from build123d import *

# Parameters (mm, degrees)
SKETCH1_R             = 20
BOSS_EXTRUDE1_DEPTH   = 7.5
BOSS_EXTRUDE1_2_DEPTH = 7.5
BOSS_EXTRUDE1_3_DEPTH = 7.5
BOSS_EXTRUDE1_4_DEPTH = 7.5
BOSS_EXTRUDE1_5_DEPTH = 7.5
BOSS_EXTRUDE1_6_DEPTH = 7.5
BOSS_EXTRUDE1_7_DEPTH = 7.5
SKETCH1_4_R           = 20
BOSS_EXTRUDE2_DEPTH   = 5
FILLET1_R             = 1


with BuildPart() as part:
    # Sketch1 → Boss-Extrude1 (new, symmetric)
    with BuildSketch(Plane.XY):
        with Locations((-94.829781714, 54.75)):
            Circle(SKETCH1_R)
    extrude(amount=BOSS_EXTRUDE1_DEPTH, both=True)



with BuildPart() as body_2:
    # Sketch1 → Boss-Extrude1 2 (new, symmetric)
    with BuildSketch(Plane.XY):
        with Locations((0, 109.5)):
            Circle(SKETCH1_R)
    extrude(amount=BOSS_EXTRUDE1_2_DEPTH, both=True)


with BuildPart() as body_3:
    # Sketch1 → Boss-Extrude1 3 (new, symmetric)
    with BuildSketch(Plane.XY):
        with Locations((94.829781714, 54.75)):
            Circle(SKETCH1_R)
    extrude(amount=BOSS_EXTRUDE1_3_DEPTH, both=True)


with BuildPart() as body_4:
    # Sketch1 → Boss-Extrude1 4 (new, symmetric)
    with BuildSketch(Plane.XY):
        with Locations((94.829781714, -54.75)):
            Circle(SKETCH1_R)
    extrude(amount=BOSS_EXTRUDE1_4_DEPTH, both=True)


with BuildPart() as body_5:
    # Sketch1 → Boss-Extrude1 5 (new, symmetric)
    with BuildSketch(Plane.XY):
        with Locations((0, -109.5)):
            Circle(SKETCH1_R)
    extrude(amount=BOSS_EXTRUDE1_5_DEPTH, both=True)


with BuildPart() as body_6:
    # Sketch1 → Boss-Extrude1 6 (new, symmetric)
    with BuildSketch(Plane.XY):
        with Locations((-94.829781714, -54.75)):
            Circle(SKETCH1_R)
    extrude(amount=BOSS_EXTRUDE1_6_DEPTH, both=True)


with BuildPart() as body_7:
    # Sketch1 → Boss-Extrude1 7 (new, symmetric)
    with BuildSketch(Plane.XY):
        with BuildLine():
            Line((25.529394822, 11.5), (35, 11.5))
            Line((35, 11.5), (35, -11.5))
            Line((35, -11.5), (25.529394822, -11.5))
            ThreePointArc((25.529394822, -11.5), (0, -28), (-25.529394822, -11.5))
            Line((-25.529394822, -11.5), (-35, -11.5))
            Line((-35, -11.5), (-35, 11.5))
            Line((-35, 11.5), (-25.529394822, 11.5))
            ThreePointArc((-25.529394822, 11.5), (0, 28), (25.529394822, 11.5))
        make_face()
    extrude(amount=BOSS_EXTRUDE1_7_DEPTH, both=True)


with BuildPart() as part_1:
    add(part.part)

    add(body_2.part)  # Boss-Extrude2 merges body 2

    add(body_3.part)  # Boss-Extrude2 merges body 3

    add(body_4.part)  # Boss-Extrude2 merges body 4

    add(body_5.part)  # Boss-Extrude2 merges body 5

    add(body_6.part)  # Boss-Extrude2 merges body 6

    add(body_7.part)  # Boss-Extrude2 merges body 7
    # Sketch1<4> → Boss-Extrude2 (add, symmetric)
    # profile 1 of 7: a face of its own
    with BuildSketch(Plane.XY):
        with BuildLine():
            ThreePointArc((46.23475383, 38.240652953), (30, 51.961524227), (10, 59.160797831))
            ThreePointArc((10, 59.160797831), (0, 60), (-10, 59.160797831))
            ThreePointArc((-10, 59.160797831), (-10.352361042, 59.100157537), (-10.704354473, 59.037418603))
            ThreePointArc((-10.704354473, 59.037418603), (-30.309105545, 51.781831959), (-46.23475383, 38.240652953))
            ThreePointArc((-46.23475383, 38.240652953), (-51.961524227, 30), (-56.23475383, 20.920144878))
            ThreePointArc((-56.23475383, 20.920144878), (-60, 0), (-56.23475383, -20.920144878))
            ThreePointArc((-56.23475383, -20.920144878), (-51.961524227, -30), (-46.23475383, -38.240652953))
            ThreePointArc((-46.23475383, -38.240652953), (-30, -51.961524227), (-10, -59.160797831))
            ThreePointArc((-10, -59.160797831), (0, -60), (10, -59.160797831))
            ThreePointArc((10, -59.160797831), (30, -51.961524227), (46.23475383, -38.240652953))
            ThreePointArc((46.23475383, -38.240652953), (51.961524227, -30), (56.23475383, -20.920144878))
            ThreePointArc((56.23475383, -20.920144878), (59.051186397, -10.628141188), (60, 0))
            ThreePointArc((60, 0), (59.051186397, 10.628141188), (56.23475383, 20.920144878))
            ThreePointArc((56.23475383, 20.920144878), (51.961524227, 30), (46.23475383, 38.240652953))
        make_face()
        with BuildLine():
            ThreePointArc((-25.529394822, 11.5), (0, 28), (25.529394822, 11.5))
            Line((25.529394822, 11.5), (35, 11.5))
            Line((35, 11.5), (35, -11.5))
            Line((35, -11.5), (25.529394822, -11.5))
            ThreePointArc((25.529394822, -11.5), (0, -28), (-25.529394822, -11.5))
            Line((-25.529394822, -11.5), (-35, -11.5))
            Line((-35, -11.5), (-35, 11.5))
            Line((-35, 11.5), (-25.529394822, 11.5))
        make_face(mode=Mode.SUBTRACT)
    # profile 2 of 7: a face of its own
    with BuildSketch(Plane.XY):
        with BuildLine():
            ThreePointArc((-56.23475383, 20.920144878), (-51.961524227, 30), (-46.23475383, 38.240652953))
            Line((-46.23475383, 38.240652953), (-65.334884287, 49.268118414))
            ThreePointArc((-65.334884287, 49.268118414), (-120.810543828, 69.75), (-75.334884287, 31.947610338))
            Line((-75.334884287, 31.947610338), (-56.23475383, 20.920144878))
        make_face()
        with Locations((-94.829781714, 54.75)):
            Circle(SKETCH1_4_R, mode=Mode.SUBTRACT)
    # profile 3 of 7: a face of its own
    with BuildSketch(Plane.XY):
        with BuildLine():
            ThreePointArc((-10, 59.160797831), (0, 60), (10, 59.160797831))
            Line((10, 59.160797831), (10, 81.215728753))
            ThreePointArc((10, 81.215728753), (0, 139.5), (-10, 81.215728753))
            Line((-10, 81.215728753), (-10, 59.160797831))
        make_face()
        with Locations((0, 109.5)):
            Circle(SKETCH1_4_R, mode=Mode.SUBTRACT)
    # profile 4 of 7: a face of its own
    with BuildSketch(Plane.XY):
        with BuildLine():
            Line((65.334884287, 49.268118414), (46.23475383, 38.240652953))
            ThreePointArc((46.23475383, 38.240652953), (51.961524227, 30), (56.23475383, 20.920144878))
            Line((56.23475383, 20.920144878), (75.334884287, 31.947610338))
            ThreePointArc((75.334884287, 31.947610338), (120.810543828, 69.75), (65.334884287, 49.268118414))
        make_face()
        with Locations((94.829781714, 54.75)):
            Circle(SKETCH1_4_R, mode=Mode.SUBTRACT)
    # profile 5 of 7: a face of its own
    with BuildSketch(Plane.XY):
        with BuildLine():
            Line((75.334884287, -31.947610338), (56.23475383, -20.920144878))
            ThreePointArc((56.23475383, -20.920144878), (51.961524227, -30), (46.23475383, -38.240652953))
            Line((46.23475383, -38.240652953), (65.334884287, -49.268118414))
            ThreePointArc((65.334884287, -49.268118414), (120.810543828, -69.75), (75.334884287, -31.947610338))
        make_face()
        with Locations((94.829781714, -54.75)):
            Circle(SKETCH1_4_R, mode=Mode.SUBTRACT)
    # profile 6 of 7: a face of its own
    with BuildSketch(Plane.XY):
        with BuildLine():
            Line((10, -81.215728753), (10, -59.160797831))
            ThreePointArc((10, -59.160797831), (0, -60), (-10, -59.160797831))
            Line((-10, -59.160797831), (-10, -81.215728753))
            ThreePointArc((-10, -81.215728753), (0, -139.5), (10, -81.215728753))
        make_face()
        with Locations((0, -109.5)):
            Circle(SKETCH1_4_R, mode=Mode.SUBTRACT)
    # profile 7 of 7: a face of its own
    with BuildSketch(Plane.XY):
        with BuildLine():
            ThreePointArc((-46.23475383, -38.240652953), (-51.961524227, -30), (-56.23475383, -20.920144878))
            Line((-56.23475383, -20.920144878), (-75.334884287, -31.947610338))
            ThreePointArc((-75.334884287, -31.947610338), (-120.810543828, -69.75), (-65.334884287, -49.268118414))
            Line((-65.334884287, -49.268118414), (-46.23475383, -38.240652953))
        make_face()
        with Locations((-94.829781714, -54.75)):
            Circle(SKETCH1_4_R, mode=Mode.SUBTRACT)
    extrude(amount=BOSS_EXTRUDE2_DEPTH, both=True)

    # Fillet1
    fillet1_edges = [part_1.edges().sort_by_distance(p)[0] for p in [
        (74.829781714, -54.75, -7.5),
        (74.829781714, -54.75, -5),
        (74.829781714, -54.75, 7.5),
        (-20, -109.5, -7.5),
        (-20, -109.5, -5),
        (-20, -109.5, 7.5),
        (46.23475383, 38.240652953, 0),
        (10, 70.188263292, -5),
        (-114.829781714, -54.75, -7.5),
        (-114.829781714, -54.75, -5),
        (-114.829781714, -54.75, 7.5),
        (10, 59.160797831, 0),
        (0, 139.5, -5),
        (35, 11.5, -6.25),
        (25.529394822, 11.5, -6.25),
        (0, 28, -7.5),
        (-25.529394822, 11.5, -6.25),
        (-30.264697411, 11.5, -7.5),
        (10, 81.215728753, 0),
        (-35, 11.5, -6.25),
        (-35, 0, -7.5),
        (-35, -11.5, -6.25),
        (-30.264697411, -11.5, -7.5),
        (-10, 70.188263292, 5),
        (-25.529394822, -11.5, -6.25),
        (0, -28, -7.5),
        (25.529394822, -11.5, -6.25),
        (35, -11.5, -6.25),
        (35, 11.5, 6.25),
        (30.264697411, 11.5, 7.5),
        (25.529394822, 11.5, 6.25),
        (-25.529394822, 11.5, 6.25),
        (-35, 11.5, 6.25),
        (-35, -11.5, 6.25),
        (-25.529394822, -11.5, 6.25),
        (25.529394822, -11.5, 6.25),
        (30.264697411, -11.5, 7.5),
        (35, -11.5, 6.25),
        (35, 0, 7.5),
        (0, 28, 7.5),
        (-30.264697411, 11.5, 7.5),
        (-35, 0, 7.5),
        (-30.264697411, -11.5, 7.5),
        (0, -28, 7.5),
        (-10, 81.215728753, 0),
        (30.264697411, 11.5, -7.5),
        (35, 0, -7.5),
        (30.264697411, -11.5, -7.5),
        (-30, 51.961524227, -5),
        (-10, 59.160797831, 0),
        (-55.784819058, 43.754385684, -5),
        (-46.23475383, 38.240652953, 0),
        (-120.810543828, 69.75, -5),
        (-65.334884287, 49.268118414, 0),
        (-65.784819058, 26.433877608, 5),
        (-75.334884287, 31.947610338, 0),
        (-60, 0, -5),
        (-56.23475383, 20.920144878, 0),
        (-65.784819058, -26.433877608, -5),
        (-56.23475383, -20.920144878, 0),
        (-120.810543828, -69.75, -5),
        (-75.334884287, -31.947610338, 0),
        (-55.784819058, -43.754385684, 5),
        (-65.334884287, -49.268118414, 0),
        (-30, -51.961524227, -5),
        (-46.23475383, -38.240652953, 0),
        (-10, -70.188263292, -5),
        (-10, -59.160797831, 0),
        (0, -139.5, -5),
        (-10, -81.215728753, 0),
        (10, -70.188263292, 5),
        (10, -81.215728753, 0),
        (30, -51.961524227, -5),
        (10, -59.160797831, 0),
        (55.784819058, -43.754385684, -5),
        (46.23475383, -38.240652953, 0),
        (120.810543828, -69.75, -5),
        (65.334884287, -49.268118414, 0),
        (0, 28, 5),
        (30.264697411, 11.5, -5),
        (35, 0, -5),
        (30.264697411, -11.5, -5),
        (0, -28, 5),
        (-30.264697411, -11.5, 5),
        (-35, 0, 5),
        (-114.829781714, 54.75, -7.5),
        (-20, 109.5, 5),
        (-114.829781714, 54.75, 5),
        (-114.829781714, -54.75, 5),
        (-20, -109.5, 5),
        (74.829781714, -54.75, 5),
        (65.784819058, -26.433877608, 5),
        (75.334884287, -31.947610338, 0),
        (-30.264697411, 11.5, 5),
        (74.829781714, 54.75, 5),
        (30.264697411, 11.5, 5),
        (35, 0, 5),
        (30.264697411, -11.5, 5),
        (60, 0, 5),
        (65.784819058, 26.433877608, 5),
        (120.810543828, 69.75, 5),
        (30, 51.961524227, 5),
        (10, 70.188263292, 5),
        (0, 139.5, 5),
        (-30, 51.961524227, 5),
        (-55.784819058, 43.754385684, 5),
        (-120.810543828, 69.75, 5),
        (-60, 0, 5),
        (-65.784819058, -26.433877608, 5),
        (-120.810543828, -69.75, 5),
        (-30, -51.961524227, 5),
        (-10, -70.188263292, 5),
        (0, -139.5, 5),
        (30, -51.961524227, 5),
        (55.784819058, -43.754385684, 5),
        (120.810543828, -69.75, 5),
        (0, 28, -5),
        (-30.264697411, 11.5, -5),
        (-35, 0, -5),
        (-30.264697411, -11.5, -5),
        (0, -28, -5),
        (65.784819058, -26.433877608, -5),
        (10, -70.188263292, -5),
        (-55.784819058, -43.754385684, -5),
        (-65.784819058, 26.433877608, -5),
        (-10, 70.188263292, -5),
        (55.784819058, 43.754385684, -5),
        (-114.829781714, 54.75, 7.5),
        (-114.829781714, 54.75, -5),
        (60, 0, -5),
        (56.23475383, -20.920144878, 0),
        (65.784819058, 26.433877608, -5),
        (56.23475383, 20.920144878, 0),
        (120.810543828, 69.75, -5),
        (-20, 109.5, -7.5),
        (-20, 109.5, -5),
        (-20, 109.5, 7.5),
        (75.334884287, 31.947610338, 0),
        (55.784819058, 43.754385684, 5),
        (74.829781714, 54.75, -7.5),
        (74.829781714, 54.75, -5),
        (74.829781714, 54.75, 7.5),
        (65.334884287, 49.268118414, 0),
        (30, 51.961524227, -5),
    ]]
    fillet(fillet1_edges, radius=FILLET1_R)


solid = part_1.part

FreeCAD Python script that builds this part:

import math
import FreeCAD as App
import Part
import Sketcher
Q = App.Units.Quantity

doc = App.newDocument("Part")
params = doc.addObject("Spreadsheet::Sheet", "Params")
for row, (alias, value) in enumerate([
    ("sketch1_diameter", "40 mm"),
    ("pad1_length", "15 mm"),
    ("sketch2_diameter", "40 mm"),
    ("pad2_length", "15 mm"),
    ("sketch3_diameter", "40 mm"),
    ("pad3_length", "15 mm"),
    ("sketch4_diameter", "40 mm"),
    ("pad4_length", "15 mm"),
    ("sketch5_diameter", "40 mm"),
    ("pad5_length", "15 mm"),
    ("sketch6_diameter", "40 mm"),
    ("pad6_length", "15 mm"),
    ("sketch7_radius", "28 mm"),
    ("sketch7_height", "23 mm"),
    ("pad7_length", "15 mm"),
    ("sketch8_diameter", "40 mm"),
    ("sketch8_radius", "60 mm"),
    ("sketch8_radius2", "30 mm"),
    ("sketch8_radius3", "28 mm"),
    ("sketch8_height", "23 mm"),
    ("pad8_length", "10 mm"),
    ("fillet_radius", "1 mm"),
], start=1):
    params.set(f"A{row}", alias)
    params.set(f"B{row}", "=" + value)
    params.setAlias(f"B{row}", alias)

body = doc.addObject("PartDesign::Body", "Body")

sketch1 = doc.addObject("Sketcher::SketchObject", "Sketch")
body.addObject(sketch1)
sketch1.AttachmentSupport = (doc.XY_Plane, [""])
sketch1.MapMode = "FlatFace"
sketch1.addGeometry(Part.Circle(App.Vector(-95, 55, 0), App.Vector(0, 0, 1), 20), False)
sketch1.addConstraint([
    Sketcher.Constraint("Diameter", 0, Q("40 mm")),
    Sketcher.Constraint("DistanceY", -1, 1, 0, 3, Q("54.75 mm")),
    Sketcher.Constraint("DistanceX", 0, 3, -1, 1, Q("94.829782 mm")),
])
sketch1.setExpression("Constraints[0]", "Params.sketch1_diameter")
pad1 = doc.addObject("PartDesign::Pad", "Pad")
body.addObject(pad1)
pad1.Profile = sketch1
pad1.setExpression("Length", "Params.pad1_length")
pad1.Midplane = True
body2 = doc.addObject("PartDesign::Body", "Body001")

sketch2 = doc.addObject("Sketcher::SketchObject", "Sketch001")
body2.addObject(sketch2)
sketch2.AttachmentSupport = (doc.getObject("XY_Plane001"), [""])
sketch2.MapMode = "FlatFace"
sketch2.addGeometry(Part.Circle(App.Vector(0, 110, 0), App.Vector(0, 0, 1), 20), False)
sketch2.addConstraint([
    Sketcher.Constraint("PointOnObject", 0, 3, -2),
    Sketcher.Constraint("Diameter", 0, Q("40 mm")),
    Sketcher.Constraint("DistanceY", -1, 1, 0, 3, Q("109.5 mm")),
])
sketch2.setExpression("Constraints[1]", "Params.sketch2_diameter")
pad2 = doc.addObject("PartDesign::Pad", "Pad001")
body2.addObject(pad2)
pad2.Profile = sketch2
pad2.setExpression("Length", "Params.pad2_length")
pad2.Midplane = True
body3 = doc.addObject("PartDesign::Body", "Body002")

sketch3 = doc.addObject("Sketcher::SketchObject", "Sketch002")
body3.addObject(sketch3)
sketch3.AttachmentSupport = (doc.getObject("XY_Plane002"), [""])
sketch3.MapMode = "FlatFace"
sketch3.addGeometry(Part.Circle(App.Vector(95, 55, 0), App.Vector(0, 0, 1), 20), False)
sketch3.addConstraint([
    Sketcher.Constraint("Diameter", 0, Q("40 mm")),
    Sketcher.Constraint("DistanceY", -1, 1, 0, 3, Q("54.75 mm")),
    Sketcher.Constraint("DistanceX", -1, 1, 0, 3, Q("94.829782 mm")),
])
sketch3.setExpression("Constraints[0]", "Params.sketch3_diameter")
pad3 = doc.addObject("PartDesign::Pad", "Pad002")
body3.addObject(pad3)
pad3.Profile = sketch3
pad3.setExpression("Length", "Params.pad3_length")
pad3.Midplane = True
body4 = doc.addObject("PartDesign::Body", "Body003")

sketch4 = doc.addObject("Sketcher::SketchObject", "Sketch003")
body4.addObject(sketch4)
sketch4.AttachmentSupport = (doc.getObject("XY_Plane003"), [""])
sketch4.MapMode = "FlatFace"
sketch4.addGeometry(Part.Circle(App.Vector(95, -55, 0), App.Vector(0, 0, 1), 20), False)
sketch4.addConstraint([
    Sketcher.Constraint("Diameter", 0, Q("40 mm")),
    Sketcher.Constraint("DistanceY", 0, 3, -1, 1, Q("54.75 mm")),
    Sketcher.Constraint("DistanceX", -1, 1, 0, 3, Q("94.829782 mm")),
])
sketch4.setExpression("Constraints[0]", "Params.sketch4_diameter")
pad4 = doc.addObject("PartDesign::Pad", "Pad003")
body4.addObject(pad4)
pad4.Profile = sketch4
pad4.setExpression("Length", "Params.pad4_length")
pad4.Midplane = True
body5 = doc.addObject("PartDesign::Body", "Body004")

sketch5 = doc.addObject("Sketcher::SketchObject", "Sketch004")
body5.addObject(sketch5)
sketch5.AttachmentSupport = (doc.getObject("XY_Plane004"), [""])
sketch5.MapMode = "FlatFace"
sketch5.addGeometry(Part.Circle(App.Vector(0, -110, 0), App.Vector(0, 0, 1), 20), False)
sketch5.addConstraint([
    Sketcher.Constraint("PointOnObject", 0, 3, -2),
    Sketcher.Constraint("Diameter", 0, Q("40 mm")),
    Sketcher.Constraint("DistanceY", 0, 3, -1, 1, Q("109.5 mm")),
])
sketch5.setExpression("Constraints[1]", "Params.sketch5_diameter")
pad5 = doc.addObject("PartDesign::Pad", "Pad004")
body5.addObject(pad5)
pad5.Profile = sketch5
pad5.setExpression("Length", "Params.pad5_length")
pad5.Midplane = True
body6 = doc.addObject("PartDesign::Body", "Body005")

sketch6 = doc.addObject("Sketcher::SketchObject", "Sketch005")
body6.addObject(sketch6)
sketch6.AttachmentSupport = (doc.getObject("XY_Plane005"), [""])
sketch6.MapMode = "FlatFace"
sketch6.addGeometry(Part.Circle(App.Vector(-95, -55, 0), App.Vector(0, 0, 1), 20), False)
sketch6.addConstraint([
    Sketcher.Constraint("Diameter", 0, Q("40 mm")),
    Sketcher.Constraint("DistanceY", 0, 3, -1, 1, Q("54.75 mm")),
    Sketcher.Constraint("DistanceX", 0, 3, -1, 1, Q("94.829782 mm")),
])
sketch6.setExpression("Constraints[0]", "Params.sketch6_diameter")
pad6 = doc.addObject("PartDesign::Pad", "Pad005")
body6.addObject(pad6)
pad6.Profile = sketch6
pad6.setExpression("Length", "Params.pad6_length")
pad6.Midplane = True
body7 = doc.addObject("PartDesign::Body", "Body006")

sketch7 = doc.addObject("Sketcher::SketchObject", "Sketch006")
body7.addObject(sketch7)
sketch7.AttachmentSupport = (doc.getObject("XY_Plane006"), [""])
sketch7.MapMode = "FlatFace"
sketch7.addGeometry([
    Part.LineSegment(App.Vector(35, 12, 0), App.Vector(26, 12, 0)),
    Part.ArcOfCircle(Part.Circle(App.Vector(0, 0, 0), App.Vector(0, 0, 1), 28), math.radians(24), math.radians(156)),
    Part.LineSegment(App.Vector(-26, 12, 0), App.Vector(-35, 12, 0)),
    Part.LineSegment(App.Vector(-35, 12, 0), App.Vector(-35, -12, 0)),
    Part.LineSegment(App.Vector(-35, -12, 0), App.Vector(-26, -12, 0)),
    Part.ArcOfCircle(Part.Circle(App.Vector(0, 0, 0), App.Vector(0, 0, 1), 28), math.radians(-156), math.radians(-24)),
    Part.LineSegment(App.Vector(26, -12, 0), App.Vector(35, -12, 0)),
    Part.LineSegment(App.Vector(35, -12, 0), App.Vector(35, 12, 0)),
], False)
sketch7.addConstraint([
    Sketcher.Constraint("Coincident", 0, 2, 1, 1),
    Sketcher.Constraint("Coincident", 1, 2, 2, 1),
    Sketcher.Constraint("Coincident", 2, 2, 3, 1),
    Sketcher.Constraint("Coincident", 3, 2, 4, 1),
    Sketcher.Constraint("Coincident", 4, 2, 5, 1),
    Sketcher.Constraint("Coincident", 5, 2, 6, 1),
    Sketcher.Constraint("Coincident", 6, 2, 7, 1),
    Sketcher.Constraint("Coincident", 7, 2, 0, 1),
    Sketcher.Constraint("Horizontal", 0),
    Sketcher.Constraint("Horizontal", 2),
    Sketcher.Constraint("Vertical", 3),
    Sketcher.Constraint("Horizontal", 4),
    Sketcher.Constraint("Horizontal", 6),
    Sketcher.Constraint("Vertical", 7),
    Sketcher.Constraint("Coincident", 1, 3, -1, 1),
    Sketcher.Constraint("Coincident", 5, 3, -1, 1),
    Sketcher.Constraint("Equal", 1, 5),
    Sketcher.Constraint("Symmetric", 2, 2, 6, 2, -1, 1),
    Sketcher.Constraint("Horizontal", 0, 2, 1, 2),
    Sketcher.Constraint("Horizontal", 4, 2, 5, 2),
    Sketcher.Constraint("Radius", 1, Q("28 mm")),
    Sketcher.Constraint("DistanceY", 3, 2, 3, 1, Q("23 mm")),
    Sketcher.Constraint("DistanceX", 2, 2, -1, 1, Q("35 mm")),
])
sketch7.setExpression("Constraints[20]", "Params.sketch7_radius")
sketch7.setExpression("Constraints[21]", "Params.sketch7_height")
pad7 = doc.addObject("PartDesign::Pad", "Pad006")
body7.addObject(pad7)
pad7.Profile = sketch7
pad7.setExpression("Length", "Params.pad7_length")
pad7.Midplane = True
body.AllowCompound = True
doc.recompute()

boolean = doc.addObject("PartDesign::Boolean", "Boolean")
body.addObject(boolean)
boolean.Type = "Fuse"
boolean.addObjects([body2])
doc.recompute()

boolean2 = doc.addObject("PartDesign::Boolean", "Boolean001")
body.addObject(boolean2)
boolean2.Type = "Fuse"
boolean2.addObjects([body3])
doc.recompute()

boolean3 = doc.addObject("PartDesign::Boolean", "Boolean002")
body.addObject(boolean3)
boolean3.Type = "Fuse"
boolean3.addObjects([body4])
doc.recompute()

boolean4 = doc.addObject("PartDesign::Boolean", "Boolean003")
body.addObject(boolean4)
boolean4.Type = "Fuse"
boolean4.addObjects([body5])
doc.recompute()

boolean5 = doc.addObject("PartDesign::Boolean", "Boolean004")
body.addObject(boolean5)
boolean5.Type = "Fuse"
boolean5.addObjects([body6])
doc.recompute()

boolean6 = doc.addObject("PartDesign::Boolean", "Boolean005")
body.addObject(boolean6)
boolean6.Type = "Fuse"
boolean6.addObjects([body7])

sketch8 = doc.addObject("Sketcher::SketchObject", "Sketch007")
body.addObject(sketch8)
sketch8.AttachmentSupport = (doc.XY_Plane, [""])
sketch8.MapMode = "FlatFace"
sketch8.addGeometry([
    Part.ArcOfCircle(Part.Circle(App.Vector(0, 0, 0), App.Vector(0, 0, 1), 60), math.radians(40), math.radians(80)),
    Part.LineSegment(App.Vector(10, 59.2, 0), App.Vector(10, 81.2, 0)),
    Part.ArcOfCircle(Part.Circle(App.Vector(0, 109.5, 0), App.Vector(0, 0, 1), 30), math.radians(-71), math.radians(251)),
    Part.LineSegment(App.Vector(-10, 81.2, 0), App.Vector(-10, 59.2, 0)),
    Part.ArcOfCircle(Part.Circle(App.Vector(0, 0, 0), App.Vector(0, 0, 1), 60), math.radians(99.59), math.radians(100.28)),
    Part.ArcOfCircle(Part.Circle(App.Vector(0, 0, 0), App.Vector(0, 0, 1), 60), math.radians(100), math.radians(140)),
    Part.LineSegment(App.Vector(-46.2, 38.2, 0), App.Vector(-65.3, 49.3, 0)),
    Part.ArcOfCircle(Part.Circle(App.Vector(-94.8, 54.7, 0), App.Vector(0, 0, 1), 30), math.radians(-11), math.radians(311)),
    Part.LineSegment(App.Vector(-75.3, 31.9, 0), App.Vector(-56.2, 20.9, 0)),
    Part.ArcOfCircle(Part.Circle(App.Vector(0, 0, 0), App.Vector(0, 0, 1), 60), math.radians(160), math.radians(200)),
    Part.LineSegment(App.Vector(-56.2, -20.9, 0), App.Vector(-75.3, -31.9, 0)),
    Part.ArcOfCircle(Part.Circle(App.Vector(-94.8, -54.7, 0), App.Vector(0, 0, 1), 30), math.radians(49), math.radians(371)),
    Part.LineSegment(App.Vector(-65.3, -49.3, 0), App.Vector(-46.2, -38.2, 0)),
    Part.ArcOfCircle(Part.Circle(App.Vector(0, 0, 0), App.Vector(0, 0, 1), 60), math.radians(-140), math.radians(-100)),
    Part.LineSegment(App.Vector(-10, -59.2, 0), App.Vector(-10, -81.2, 0)),
    Part.ArcOfCircle(Part.Circle(App.Vector(0, -109.5, 0), App.Vector(0, 0, 1), 30), math.radians(109), math.radians(431)),
    Part.LineSegment(App.Vector(10, -81.2, 0), App.Vector(10, -59.2, 0)),
    Part.ArcOfCircle(Part.Circle(App.Vector(0, 0, 0), App.Vector(0, 0, 1), 60), math.radians(-80), math.radians(-40)),
    Part.LineSegment(App.Vector(46.2, -38.2, 0), App.Vector(65.3, -49.3, 0)),
    Part.ArcOfCircle(Part.Circle(App.Vector(94.8, -54.7, 0), App.Vector(0, 0, 1), 30), math.radians(169), math.radians(491)),
    Part.LineSegment(App.Vector(75.3, -31.9, 0), App.Vector(56.2, -20.9, 0)),
    Part.ArcOfCircle(Part.Circle(App.Vector(0, 0, 0), App.Vector(0, 0, 1), 60), math.radians(-20), math.radians(0)),
    Part.ArcOfCircle(Part.Circle(App.Vector(0, 0, 0), App.Vector(0, 0, 1), 60), math.radians(0), math.radians(20)),
    Part.LineSegment(App.Vector(56.2, 20.9, 0), App.Vector(75.3, 31.9, 0)),
    Part.ArcOfCircle(Part.Circle(App.Vector(94.8, 54.7, 0), App.Vector(0, 0, 1), 30), math.radians(-131), math.radians(191)),
    Part.LineSegment(App.Vector(65.3, 49.3, 0), App.Vector(46.2, 38.2, 0)),
    Part.LineSegment(App.Vector(-35, 11.5, 0), App.Vector(-25.5, 11.5, 0)),
    Part.ArcOfCircle(Part.Circle(App.Vector(0, 0, 0), App.Vector(0, 0, 1), 28), math.radians(24), math.radians(156)),
    Part.LineSegment(App.Vector(25.5, 11.5, 0), App.Vector(35, 11.5, 0)),
    Part.LineSegment(App.Vector(35, 11.5, 0), App.Vector(35, -11.5, 0)),
    Part.LineSegment(App.Vector(35, -11.5, 0), App.Vector(25.5, -11.5, 0)),
    Part.ArcOfCircle(Part.Circle(App.Vector(0, 0, 0), App.Vector(0, 0, 1), 28), math.radians(-156), math.radians(-24)),
    Part.LineSegment(App.Vector(-25.5, -11.5, 0), App.Vector(-35, -11.5, 0)),
    Part.LineSegment(App.Vector(-35, -11.5, 0), App.Vector(-35, 11.5, 0)),
    Part.Circle(App.Vector(94.8, 54.8, 0), App.Vector(0, 0, 1), 20),
    Part.Circle(App.Vector(0, 109.5, 0), App.Vector(0, 0, 1), 20),
    Part.Circle(App.Vector(94.8, -54.8, 0), App.Vector(0, 0, 1), 20),
    Part.Circle(App.Vector(-94.8, 54.8, 0), App.Vector(0, 0, 1), 20),
    Part.Circle(App.Vector(0, -109.5, 0), App.Vector(0, 0, 1), 20),
    Part.Circle(App.Vector(-94.8, -54.8, 0), App.Vector(0, 0, 1), 20),
], False)
sketch8.addConstraint([
    Sketcher.Constraint("Coincident", 0, 2, 1, 1),
    Sketcher.Constraint("Coincident", 1, 2, 2, 1),
    Sketcher.Constraint("Coincident", 2, 2, 3, 1),
    Sketcher.Constraint("Coincident", 3, 2, 4, 1),
    Sketcher.Constraint("Tangent", 4, 2, 5, 1),
    Sketcher.Constraint("Coincident", 5, 2, 6, 1),
    Sketcher.Constraint("Coincident", 6, 2, 7, 1),
    Sketcher.Constraint("Coincident", 7, 2, 8, 1),
    Sketcher.Constraint("Coincident", 8, 2, 9, 1),
    Sketcher.Constraint("Coincident", 9, 2, 10, 1),
    Sketcher.Constraint("Coincident", 10, 2, 11, 1),
    Sketcher.Constraint("Coincident", 11, 2, 12, 1),
    Sketcher.Constraint("Coincident", 12, 2, 13, 1),
    Sketcher.Constraint("Coincident", 13, 2, 14, 1),
    Sketcher.Constraint("Coincident", 14, 2, 15, 1),
    Sketcher.Constraint("Coincident", 15, 2, 16, 1),
    Sketcher.Constraint("Coincident", 16, 2, 17, 1),
    Sketcher.Constraint("Coincident", 17, 2, 18, 1),
    Sketcher.Constraint("Coincident", 18, 2, 19, 1),
    Sketcher.Constraint("Coincident", 19, 2, 20, 1),
    Sketcher.Constraint("Coincident", 20, 2, 21, 1),
    Sketcher.Constraint("Tangent", 21, 2, 22, 1),
    Sketcher.Constraint("Coincident", 22, 2, 23, 1),
    Sketcher.Constraint("Coincident", 23, 2, 24, 1),
    Sketcher.Constraint("Coincident", 24, 2, 25, 1),
    Sketcher.Constraint("Coincident", 25, 2, 0, 1),
    Sketcher.Constraint("Coincident", 26, 2, 27, 2),
    Sketcher.Constraint("Coincident", 27, 1, 28, 1),
    Sketcher.Constraint("Coincident", 28, 2, 29, 1),
    Sketcher.Constraint("Coincident", 29, 2, 30, 1),
    Sketcher.Constraint("Coincident", 30, 2, 31, 2),
    Sketcher.Constraint("Coincident", 31, 1, 32, 1),
    Sketcher.Constraint("Coincident", 32, 2, 33, 1),
    Sketcher.Constraint("Coincident", 33, 2, 26, 1),
    Sketcher.Constraint("Vertical", 1),
    Sketcher.Constraint("Vertical", 3),
    Sketcher.Constraint("Vertical", 14),
    Sketcher.Constraint("Vertical", 16),
    Sketcher.Constraint("Horizontal", 26),
    Sketcher.Constraint("Horizontal", 28),
    Sketcher.Constraint("Vertical", 29),
    Sketcher.Constraint("Horizontal", 30),
    Sketcher.Constraint("Horizontal", 32),
    Sketcher.Constraint("Vertical", 33),
    Sketcher.Constraint("Coincident", 0, 3, -1, 1),
    Sketcher.Constraint("Coincident", 5, 3, -1, 1),
    Sketcher.Constraint("Coincident", 9, 3, -1, 1),
    Sketcher.Constraint("Coincident", 13, 3, -1, 1),
    Sketcher.Constraint("Coincident", 17, 3, -1, 1),
    Sketcher.Constraint("Coincident", 21, 3, -1, 1),
    Sketcher.Constraint("Coincident", 27, 3, -1, 1),
    Sketcher.Constraint("Coincident", 31, 3, -1, 1),
    Sketcher.Constraint("Coincident", 34, 3, 24, 3),
    Sketcher.Constraint("Coincident", 35, 3, 2, 3),
    Sketcher.Constraint("Coincident", 36, 3, 19, 3),
    Sketcher.Constraint("Coincident", 37, 3, 7, 3),
    Sketcher.Constraint("Coincident", 38, 3, 15, 3),
    Sketcher.Constraint("Coincident", 39, 3, 11, 3),
    Sketcher.Constraint("Equal", 0, 5),
    Sketcher.Constraint("Equal", 2, 7),
    Sketcher.Constraint("Equal", 5, 9),
    Sketcher.Constraint("Equal", 7, 11),
    Sketcher.Constraint("Equal", 9, 13),
    Sketcher.Constraint("Equal", 11, 15),
    Sketcher.Constraint("Equal", 13, 17),
    Sketcher.Constraint("Equal", 15, 19),
    Sketcher.Constraint("Equal", 17, 21),
    Sketcher.Constraint("Equal", 21, 22),
    Sketcher.Constraint("Equal", 19, 24),
    Sketcher.Constraint("Equal", 27, 31),
    Sketcher.Constraint("Equal", 34, 35),
    Sketcher.Constraint("Equal", 35, 36),
    Sketcher.Constraint("Equal", 36, 37),
    Sketcher.Constraint("Equal", 37, 38),
    Sketcher.Constraint("Equal", 38, 39),
    Sketcher.Constraint("Symmetric", 2, 3, 15, 3, -1, 1),
    Sketcher.Constraint("Symmetric", 7, 3, 19, 3, -1, 1),
    Sketcher.Constraint("Symmetric", 11, 3, 24, 3, -1, 1),
    Sketcher.Constraint("Symmetric", 28, 2, 32, 2, -1, 1),
    Sketcher.Constraint("Symmetric", 11, 3, 19, 3, -2),
    Sketcher.Constraint("Symmetric", 1, 2, 2, 2, -2),
    Sketcher.Constraint("PointOnObject", 21, 2, -1),
    Sketcher.Constraint("Parallel", 6, 8),
    Sketcher.Constraint("Parallel", 10, 12),
    Sketcher.Constraint("Parallel", 8, 18),
    Sketcher.Constraint("Parallel", 18, 20),
    Sketcher.Constraint("Parallel", 12, 23),
    Sketcher.Constraint("Parallel", 23, 25),
    Sketcher.Constraint("Horizontal", 14, 2, 15, 2),
    Sketcher.Constraint("Horizontal", 12, 2, 17, 2),
    Sketcher.Constraint("Horizontal", 11, 2, 18, 2),
    Sketcher.Constraint("Horizontal", 10, 2, 19, 2),
    Sketcher.Constraint("Horizontal", 8, 2, 22, 2),
    Sketcher.Constraint("Horizontal", 6, 2, 24, 2),
    Sketcher.Constraint("Horizontal", 26, 2, 27, 1),
    Sketcher.Constraint("Horizontal", 30, 2, 31, 1),
    Sketcher.Constraint("Vertical", 8, 2, 9, 2),
    Sketcher.Constraint("Vertical", 6, 2, 11, 2),
    Sketcher.Constraint("Vertical", 3, 2, 13, 2),
    Sketcher.Constraint("Equal", 6, 8),
    Sketcher.Constraint("Diameter", 34, Q("40 mm")),
    Sketcher.Constraint("Radius", 0, Q("60 mm")),
    Sketcher.Constraint("Radius", 2, Q("30 mm")),
    Sketcher.Constraint("Radius", 27, Q("28 mm")),
    Sketcher.Constraint("DistanceY", 29, 2, 29, 1, Q("23 mm")),
    Sketcher.Constraint("Angle", 6, Q("150 deg")),
    Sketcher.Constraint("DistanceX", -1, 1, 0, 2, Q("10 mm")),
    Sketcher.Constraint("DistanceX", -1, 1, 28, 2, Q("35 mm")),
    Sketcher.Constraint("DistanceX", 7, 2, 6, 2, Q("10 mm")),
    Sketcher.Constraint("DistanceY", -1, 1, 2, 3, Q("109.5 mm")),
    Sketcher.Constraint("DistanceY", 11, 3, 7, 3, Q("109.5 mm")),
    Sketcher.Constraint("Radius", 4, Q("59.999978 mm")),
    Sketcher.Constraint("DistanceX", 5, 2, 4, 2, Q("35.530399 mm")),
    Sketcher.Constraint("DistanceY", 6, 2, 4, 2, Q("9.7693 mm")),
])
sketch8.setExpression("Constraints[100]", "Params.sketch8_diameter")
sketch8.setExpression("Constraints[101]", "Params.sketch8_radius")
sketch8.setExpression("Constraints[102]", "Params.sketch8_radius2")
sketch8.setExpression("Constraints[103]", "Params.sketch8_radius3")
sketch8.setExpression("Constraints[104]", "Params.sketch8_height")
pad8 = doc.addObject("PartDesign::Pad", "Pad007")
body.addObject(pad8)
pad8.Profile = sketch8
pad8.setExpression("Length", "Params.pad8_length")
pad8.Midplane = True
doc.recompute()

fillet = doc.addObject("PartDesign::Fillet", "Fillet")
body.addObject(fillet)
fillet.Base = (pad8, ["Edge1"])
fillet.UseAllEdges = True
fillet.setExpression("Radius", "Params.fillet_radius")

doc.recompute()
